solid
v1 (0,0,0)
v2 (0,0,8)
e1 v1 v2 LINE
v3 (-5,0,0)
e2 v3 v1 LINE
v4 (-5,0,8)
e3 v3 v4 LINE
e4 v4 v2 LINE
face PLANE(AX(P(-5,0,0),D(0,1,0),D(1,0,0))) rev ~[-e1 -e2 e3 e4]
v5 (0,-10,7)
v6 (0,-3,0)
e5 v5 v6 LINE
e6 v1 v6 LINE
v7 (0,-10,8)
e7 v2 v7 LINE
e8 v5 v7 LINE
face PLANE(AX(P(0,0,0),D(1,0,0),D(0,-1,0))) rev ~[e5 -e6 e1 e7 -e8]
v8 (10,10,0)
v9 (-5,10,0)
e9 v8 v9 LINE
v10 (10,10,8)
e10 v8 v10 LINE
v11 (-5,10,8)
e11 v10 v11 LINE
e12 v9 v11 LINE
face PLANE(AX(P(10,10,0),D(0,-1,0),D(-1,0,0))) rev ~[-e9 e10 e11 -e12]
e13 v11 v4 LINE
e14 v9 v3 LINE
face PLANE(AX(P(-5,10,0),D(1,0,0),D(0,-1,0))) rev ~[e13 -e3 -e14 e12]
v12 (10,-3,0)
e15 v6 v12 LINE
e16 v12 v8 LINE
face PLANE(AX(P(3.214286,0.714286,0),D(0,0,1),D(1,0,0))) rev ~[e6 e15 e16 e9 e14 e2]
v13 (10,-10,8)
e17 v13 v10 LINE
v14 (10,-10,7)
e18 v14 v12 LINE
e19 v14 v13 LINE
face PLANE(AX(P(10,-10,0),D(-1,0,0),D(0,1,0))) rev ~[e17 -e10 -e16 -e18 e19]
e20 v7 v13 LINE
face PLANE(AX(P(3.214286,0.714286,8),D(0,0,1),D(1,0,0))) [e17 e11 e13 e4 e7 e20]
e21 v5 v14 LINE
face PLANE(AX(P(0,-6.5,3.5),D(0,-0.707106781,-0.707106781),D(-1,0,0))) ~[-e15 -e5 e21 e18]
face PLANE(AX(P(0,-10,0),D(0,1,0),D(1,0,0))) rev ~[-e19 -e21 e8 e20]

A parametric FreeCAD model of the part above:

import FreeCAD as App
import Part
import Sketcher
from FreeCAD import Vector


def edges_at(feature, points):
    """Names of the edges that pass closest to the given points."""
    edges = feature.Shape.Edges
    near = lambda p: min(range(len(edges)), key=lambda i: edges[i].distToShape(Part.Vertex(*p))[0])
    return sorted({f"Edge{near(p) + 1}" for p in points})


def add_polygon(sketch, points):
    """Adds a closed chain of lines whose ends are joined by coincident constraints."""
    first, n = sketch.GeometryCount, len(points)
    for a, b in zip(points, points[1:] + points[:1]):
        sketch.addGeometry(Part.LineSegment(App.Vector(*a, 0), App.Vector(*b, 0)), False)
    for i in range(n):
        sketch.addConstraint(Sketcher.Constraint("Coincident", first + i, 2, first + (i + 1) % n, 1))

doc = App.newDocument("Part")
body = doc.addObject("PartDesign::Body", "Body")

sketch1 = doc.addObject("Sketcher::SketchObject", "Sketch")
body.addObject(sketch1)
sketch1.AttachmentSupport = (doc.XY_Plane, [""])
sketch1.MapMode = "FlatFace"
add_polygon(sketch1, [(10, -10), (10, 10), (-5, 10), (-5, 0), (0, 0), (0, -10)])
sketch1.addConstraint(Sketcher.Constraint("Vertical", 0))
sketch1.addConstraint(Sketcher.Constraint("Horizontal", 1))
sketch1.addConstraint(Sketcher.Constraint("Vertical", 2))
sketch1.addConstraint(Sketcher.Constraint("Horizontal", 3))
sketch1.addConstraint(Sketcher.Constraint("Vertical", 4))
sketch1.addConstraint(Sketcher.Constraint("Horizontal", 5))
sketch1.addConstraint(Sketcher.Constraint("Coincident", 3, 2, -1, 1))
sketch1.addConstraint(Sketcher.Constraint("Equal", 5, 2))
sketch1.addConstraint(Sketcher.Constraint("Equal", 2, 4))
sketch1.addConstraint(Sketcher.Constraint("DistanceX", 1, 2, 1, 1, 15.0))
sketch1.addConstraint(Sketcher.Constraint("DistanceX", 3, 1, 3, 2, 5.0))
pad1 = doc.addObject("PartDesign::Pad", "Pad")
body.addObject(pad1)
pad1.Profile = sketch1
pad1.Length = 8
doc.recompute()

chamfer = doc.addObject("PartDesign::Chamfer", "Chamfer")
body.addObject(chamfer)
chamfer.Base = (pad1, edges_at(pad1, [(5, -10, 0)]))
chamfer.Size = 7

doc.recompute()
